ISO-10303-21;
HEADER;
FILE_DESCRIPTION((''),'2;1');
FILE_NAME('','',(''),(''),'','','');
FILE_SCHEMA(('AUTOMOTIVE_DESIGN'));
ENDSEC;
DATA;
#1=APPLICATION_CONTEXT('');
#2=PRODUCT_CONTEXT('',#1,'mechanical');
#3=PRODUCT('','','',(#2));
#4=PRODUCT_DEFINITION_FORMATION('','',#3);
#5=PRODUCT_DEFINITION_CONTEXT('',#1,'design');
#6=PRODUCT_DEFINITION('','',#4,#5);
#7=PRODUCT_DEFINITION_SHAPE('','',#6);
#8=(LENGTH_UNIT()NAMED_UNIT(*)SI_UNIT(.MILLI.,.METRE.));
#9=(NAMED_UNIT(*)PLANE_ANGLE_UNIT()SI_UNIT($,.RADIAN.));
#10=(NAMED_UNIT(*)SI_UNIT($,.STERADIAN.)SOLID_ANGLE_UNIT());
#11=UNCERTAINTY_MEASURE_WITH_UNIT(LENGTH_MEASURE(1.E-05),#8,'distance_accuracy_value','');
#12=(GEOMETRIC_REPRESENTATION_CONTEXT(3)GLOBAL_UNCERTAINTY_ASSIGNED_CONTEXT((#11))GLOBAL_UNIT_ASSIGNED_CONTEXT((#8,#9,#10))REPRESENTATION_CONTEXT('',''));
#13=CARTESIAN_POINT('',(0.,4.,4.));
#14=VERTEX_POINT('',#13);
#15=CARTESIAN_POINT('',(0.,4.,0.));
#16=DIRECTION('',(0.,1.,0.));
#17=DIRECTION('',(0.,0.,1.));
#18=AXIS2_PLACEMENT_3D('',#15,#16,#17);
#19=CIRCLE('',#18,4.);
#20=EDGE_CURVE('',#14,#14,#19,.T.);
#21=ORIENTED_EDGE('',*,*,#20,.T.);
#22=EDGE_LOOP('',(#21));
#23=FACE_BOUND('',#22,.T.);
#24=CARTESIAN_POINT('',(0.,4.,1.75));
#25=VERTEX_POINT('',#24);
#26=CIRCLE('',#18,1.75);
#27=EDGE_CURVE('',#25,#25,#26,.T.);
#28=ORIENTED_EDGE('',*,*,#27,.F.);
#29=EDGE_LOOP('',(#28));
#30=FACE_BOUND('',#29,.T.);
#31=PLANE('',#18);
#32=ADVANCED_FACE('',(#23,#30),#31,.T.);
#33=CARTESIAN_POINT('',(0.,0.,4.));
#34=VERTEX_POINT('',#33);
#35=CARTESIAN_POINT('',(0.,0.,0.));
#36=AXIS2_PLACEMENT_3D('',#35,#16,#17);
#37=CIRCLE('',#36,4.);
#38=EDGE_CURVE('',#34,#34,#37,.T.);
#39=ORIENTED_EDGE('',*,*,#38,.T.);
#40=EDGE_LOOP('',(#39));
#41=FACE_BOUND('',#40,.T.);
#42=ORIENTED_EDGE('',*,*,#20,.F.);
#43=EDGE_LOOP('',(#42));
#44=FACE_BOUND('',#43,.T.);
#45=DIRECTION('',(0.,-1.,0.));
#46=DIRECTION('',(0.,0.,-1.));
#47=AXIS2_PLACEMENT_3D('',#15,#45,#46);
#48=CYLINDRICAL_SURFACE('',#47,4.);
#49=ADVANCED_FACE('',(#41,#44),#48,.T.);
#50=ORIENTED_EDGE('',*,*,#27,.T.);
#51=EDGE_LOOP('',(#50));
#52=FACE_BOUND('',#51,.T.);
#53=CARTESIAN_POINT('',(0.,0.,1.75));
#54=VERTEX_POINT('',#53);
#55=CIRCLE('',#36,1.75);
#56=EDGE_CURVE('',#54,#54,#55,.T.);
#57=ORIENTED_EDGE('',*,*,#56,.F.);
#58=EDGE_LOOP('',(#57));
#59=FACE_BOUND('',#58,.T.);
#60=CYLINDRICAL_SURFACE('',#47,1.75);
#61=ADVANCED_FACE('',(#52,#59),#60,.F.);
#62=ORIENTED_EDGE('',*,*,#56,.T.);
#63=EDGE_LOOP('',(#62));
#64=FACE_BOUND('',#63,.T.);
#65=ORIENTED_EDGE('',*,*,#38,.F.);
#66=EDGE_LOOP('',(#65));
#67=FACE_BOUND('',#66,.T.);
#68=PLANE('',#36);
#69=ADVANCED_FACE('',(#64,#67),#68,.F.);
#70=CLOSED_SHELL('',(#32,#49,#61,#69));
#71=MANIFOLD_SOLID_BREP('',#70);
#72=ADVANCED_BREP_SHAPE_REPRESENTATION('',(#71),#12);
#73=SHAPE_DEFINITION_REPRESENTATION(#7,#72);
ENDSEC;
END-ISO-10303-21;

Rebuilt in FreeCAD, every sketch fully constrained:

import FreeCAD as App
import Part
import Sketcher
Q = App.Units.Quantity

doc = App.newDocument("Part")
body = doc.addObject("PartDesign::Body", "Body")

# Sketch on XZ plane
sketch1 = body.newObject("Sketcher::SketchObject", "Sketch")
sketch1.AttachmentSupport = (doc.getObject("XZ_Plane"), [""])
sketch1.MapMode = "FlatFace"
sketch1.addGeometry(Part.Circle(App.Vector(0, 0, 0), App.Vector(0, 0, 1), 4), False)
sketch1.addGeometry(Part.Circle(App.Vector(0, 0, 0), App.Vector(0, 0, 1), 1.8), False)
sketch1.addConstraint(Sketcher.Constraint("Coincident", 0, 3, -1, 1))
sketch1.addConstraint(Sketcher.Constraint("Coincident", 1, 3, -1, 1))
sketch1.addConstraint(Sketcher.Constraint("Diameter", 0, Q("8 mm")))
sketch1.addConstraint(Sketcher.Constraint("Diameter", 1, Q("3.5 mm")))
pad1 = body.newObject("PartDesign::Pad", "Pad")
pad1.Profile = sketch1
pad1.Length = 4
pad1.Reversed = True

doc.recompute()
